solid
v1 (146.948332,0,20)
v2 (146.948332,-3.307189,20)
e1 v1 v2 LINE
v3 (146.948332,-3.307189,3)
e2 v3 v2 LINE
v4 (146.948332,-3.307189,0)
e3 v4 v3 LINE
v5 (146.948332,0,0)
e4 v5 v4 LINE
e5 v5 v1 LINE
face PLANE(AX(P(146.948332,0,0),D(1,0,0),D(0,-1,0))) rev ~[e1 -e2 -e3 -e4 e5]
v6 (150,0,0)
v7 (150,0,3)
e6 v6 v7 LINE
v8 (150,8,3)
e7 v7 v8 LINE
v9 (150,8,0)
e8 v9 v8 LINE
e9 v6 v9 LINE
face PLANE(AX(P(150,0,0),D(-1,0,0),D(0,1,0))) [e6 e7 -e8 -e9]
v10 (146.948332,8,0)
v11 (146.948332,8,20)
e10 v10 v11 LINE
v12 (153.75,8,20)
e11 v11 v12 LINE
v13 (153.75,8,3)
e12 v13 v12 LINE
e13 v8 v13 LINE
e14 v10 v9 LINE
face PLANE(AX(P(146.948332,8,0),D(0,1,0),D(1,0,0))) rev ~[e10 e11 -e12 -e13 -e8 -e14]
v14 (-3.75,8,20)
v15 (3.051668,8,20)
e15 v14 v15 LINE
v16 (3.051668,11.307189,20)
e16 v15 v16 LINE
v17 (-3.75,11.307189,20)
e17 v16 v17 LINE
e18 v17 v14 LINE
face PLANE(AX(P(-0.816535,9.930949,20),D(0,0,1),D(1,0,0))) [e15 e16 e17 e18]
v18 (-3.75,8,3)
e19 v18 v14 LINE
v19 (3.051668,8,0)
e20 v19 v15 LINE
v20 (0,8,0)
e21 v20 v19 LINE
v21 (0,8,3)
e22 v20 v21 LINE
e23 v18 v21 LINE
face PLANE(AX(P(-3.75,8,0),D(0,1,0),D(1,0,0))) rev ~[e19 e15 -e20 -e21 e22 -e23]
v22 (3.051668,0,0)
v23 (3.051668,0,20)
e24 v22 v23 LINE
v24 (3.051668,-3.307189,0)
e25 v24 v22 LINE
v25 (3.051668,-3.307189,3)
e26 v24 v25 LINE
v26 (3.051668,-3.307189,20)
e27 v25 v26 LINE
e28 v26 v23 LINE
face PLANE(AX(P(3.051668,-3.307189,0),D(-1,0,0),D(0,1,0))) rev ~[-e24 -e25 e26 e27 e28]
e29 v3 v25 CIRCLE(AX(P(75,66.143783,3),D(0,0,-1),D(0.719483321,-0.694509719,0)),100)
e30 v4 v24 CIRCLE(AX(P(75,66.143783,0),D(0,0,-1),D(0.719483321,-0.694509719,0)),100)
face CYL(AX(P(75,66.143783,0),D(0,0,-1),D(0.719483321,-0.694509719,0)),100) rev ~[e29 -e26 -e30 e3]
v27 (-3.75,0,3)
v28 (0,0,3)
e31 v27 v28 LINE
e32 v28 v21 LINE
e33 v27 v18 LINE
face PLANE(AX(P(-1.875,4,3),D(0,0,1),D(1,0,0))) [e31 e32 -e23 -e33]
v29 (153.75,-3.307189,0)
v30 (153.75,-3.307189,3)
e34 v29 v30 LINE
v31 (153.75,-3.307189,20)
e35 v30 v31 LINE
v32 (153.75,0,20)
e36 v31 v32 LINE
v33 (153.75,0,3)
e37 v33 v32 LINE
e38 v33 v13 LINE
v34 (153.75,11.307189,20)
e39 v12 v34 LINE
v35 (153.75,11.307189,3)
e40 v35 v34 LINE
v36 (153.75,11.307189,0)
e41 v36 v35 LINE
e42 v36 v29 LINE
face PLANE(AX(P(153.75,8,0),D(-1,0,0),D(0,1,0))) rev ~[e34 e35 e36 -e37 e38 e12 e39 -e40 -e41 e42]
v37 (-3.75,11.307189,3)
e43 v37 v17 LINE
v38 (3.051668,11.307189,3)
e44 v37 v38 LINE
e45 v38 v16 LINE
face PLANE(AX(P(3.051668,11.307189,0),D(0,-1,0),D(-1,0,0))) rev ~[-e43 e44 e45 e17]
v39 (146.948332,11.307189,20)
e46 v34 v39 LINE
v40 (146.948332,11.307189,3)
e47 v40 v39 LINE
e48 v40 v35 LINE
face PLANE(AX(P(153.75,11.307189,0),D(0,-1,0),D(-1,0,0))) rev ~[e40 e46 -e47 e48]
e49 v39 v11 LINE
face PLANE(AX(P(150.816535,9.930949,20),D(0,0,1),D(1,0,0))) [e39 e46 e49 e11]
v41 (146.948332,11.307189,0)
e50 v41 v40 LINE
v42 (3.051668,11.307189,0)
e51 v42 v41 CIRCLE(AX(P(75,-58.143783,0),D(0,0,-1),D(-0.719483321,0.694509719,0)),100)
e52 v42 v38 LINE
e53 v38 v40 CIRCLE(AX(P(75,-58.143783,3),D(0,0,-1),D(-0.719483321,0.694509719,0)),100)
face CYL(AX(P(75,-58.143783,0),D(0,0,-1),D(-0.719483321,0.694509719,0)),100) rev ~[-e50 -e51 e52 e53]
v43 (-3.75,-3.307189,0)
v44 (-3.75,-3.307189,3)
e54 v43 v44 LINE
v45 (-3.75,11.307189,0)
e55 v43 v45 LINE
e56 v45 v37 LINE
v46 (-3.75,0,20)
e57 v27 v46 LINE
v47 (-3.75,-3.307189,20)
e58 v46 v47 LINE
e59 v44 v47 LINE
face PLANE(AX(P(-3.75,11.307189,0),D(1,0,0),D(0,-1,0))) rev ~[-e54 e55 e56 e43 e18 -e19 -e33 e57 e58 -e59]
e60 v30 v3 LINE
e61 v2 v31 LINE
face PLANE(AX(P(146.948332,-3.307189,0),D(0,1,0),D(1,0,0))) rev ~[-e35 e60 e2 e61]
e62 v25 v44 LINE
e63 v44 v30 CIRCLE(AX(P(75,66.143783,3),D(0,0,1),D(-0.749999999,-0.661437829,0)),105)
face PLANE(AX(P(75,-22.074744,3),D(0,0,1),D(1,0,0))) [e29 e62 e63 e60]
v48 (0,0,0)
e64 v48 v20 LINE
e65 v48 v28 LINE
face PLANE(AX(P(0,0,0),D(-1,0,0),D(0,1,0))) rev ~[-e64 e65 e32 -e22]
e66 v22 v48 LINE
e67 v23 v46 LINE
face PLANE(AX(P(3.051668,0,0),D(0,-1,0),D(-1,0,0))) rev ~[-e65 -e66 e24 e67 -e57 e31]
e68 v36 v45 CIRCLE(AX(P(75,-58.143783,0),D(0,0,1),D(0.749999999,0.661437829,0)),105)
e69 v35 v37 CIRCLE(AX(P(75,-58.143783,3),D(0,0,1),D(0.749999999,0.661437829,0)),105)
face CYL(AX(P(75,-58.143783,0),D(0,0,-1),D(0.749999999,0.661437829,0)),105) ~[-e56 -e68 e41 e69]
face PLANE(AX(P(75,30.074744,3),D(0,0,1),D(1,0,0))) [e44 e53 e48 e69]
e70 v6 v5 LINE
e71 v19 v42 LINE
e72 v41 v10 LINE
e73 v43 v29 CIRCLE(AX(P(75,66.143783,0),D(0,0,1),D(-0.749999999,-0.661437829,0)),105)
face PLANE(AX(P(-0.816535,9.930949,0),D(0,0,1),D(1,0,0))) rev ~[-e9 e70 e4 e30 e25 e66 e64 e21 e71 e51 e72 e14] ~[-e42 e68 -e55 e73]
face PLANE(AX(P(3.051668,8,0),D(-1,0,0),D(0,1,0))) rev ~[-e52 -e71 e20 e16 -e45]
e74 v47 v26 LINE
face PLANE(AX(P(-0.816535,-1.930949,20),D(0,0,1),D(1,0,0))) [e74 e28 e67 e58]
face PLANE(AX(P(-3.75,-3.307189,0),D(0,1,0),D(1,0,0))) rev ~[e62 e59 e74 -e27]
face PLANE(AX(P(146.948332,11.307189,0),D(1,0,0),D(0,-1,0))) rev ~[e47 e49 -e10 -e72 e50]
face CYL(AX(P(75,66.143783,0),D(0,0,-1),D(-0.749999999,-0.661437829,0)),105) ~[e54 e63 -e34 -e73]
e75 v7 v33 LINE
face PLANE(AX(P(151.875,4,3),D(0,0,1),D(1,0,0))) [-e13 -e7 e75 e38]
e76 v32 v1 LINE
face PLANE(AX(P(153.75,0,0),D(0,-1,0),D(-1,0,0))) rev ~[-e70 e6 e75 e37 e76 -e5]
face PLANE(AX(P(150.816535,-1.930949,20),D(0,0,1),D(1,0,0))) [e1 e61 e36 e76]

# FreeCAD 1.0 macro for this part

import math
import FreeCAD as App
import Part
import Sketcher
Q = App.Units.Quantity

doc = App.newDocument("Part")
body = doc.addObject("PartDesign::Body", "Body")
body.AllowCompound = True

# Sketch on XY plane
sketch1 = body.newObject("Sketcher::SketchObject", "Sketch")
sketch1.AttachmentSupport = (doc.getObject("XY_Plane"), [""])
sketch1.MapMode = "FlatFace"
sketch1.addGeometry([
    Part.LineSegment(App.Vector(-3.8, 11.3, 0), App.Vector(3.1, 11.3, 0)),  # 0
    Part.ArcOfCircle(Part.Circle(App.Vector(75, -58.1, 0), App.Vector(0, 0, 1), 100), math.radians(44), math.radians(136)),  # 1
    Part.LineSegment(App.Vector(146.9, 11.3, 0), App.Vector(153.8, 11.3, 0)),  # 2
    Part.ArcOfCircle(Part.Circle(App.Vector(75, -58.1, 0), App.Vector(0, 0, 1), 105), math.radians(41), math.radians(139)),  # 3
    Part.ArcOfCircle(Part.Circle(App.Vector(75, 66.1, 0), App.Vector(0, 0, 1), 100), math.radians(-136), math.radians(-44)),  # 4
    Part.LineSegment(App.Vector(3.1, -3.3, 0), App.Vector(-3.8, -3.3, 0)),  # 5
    Part.ArcOfCircle(Part.Circle(App.Vector(75, 66.1, 0), App.Vector(0, 0, 1), 105), math.radians(-139), math.radians(-41)),  # 6
    Part.LineSegment(App.Vector(153.8, -3.3, 0), App.Vector(146.9, -3.3, 0)),  # 7
    Part.LineSegment(App.Vector(150, 8, 0), App.Vector(150, 0, 0)),  # 8
    Part.LineSegment(App.Vector(150, 0, 0), App.Vector(153.8, 0, 0)),  # 9
    Part.LineSegment(App.Vector(153.8, 0, 0), App.Vector(153.8, 8, 0)),  # 10
    Part.LineSegment(App.Vector(153.8, 8, 0), App.Vector(150, 8, 0)),  # 11
    Part.LineSegment(App.Vector(-3.8, 8, 0), App.Vector(-3.8, 0, 0)),  # 12
    Part.LineSegment(App.Vector(-3.8, 0, 0), App.Vector(0, 0, 0)),  # 13
    Part.LineSegment(App.Vector(0, 0, 0), App.Vector(0, 8, 0)),  # 14
    Part.LineSegment(App.Vector(0, 8, 0), App.Vector(-3.8, 8, 0)),  # 15
], False)
sketch1.addConstraint([
    Sketcher.Constraint("Coincident", 0, 2, 1, 2),
    Sketcher.Constraint("Coincident", 1, 1, 2, 1),
    Sketcher.Constraint("Coincident", 2, 2, 3, 1),
    Sketcher.Constraint("Coincident", 3, 2, 0, 1),
    Sketcher.Constraint("Coincident", 4, 1, 5, 1),
    Sketcher.Constraint("Coincident", 5, 2, 6, 1),
    Sketcher.Constraint("Coincident", 6, 2, 7, 1),
    Sketcher.Constraint("Coincident", 7, 2, 4, 2),
    Sketcher.Constraint("Coincident", 8, 2, 9, 1),
    Sketcher.Constraint("Coincident", 9, 2, 10, 1),
    Sketcher.Constraint("Coincident", 10, 2, 11, 1),
    Sketcher.Constraint("Coincident", 11, 2, 8, 1),
    Sketcher.Constraint("Coincident", 12, 2, 13, 1),
    Sketcher.Constraint("Coincident", 13, 2, 14, 1),
    Sketcher.Constraint("Coincident", 14, 2, 15, 1),
    Sketcher.Constraint("Coincident", 15, 2, 12, 1),
    Sketcher.Constraint("Horizontal", 0),
    Sketcher.Constraint("Horizontal", 2),
    Sketcher.Constraint("Horizontal", 5),
    Sketcher.Constraint("Horizontal", 7),
    Sketcher.Constraint("Vertical", 8),
    Sketcher.Constraint("Horizontal", 9),
    Sketcher.Constraint("Vertical", 10),
    Sketcher.Constraint("Horizontal", 11),
    Sketcher.Constraint("Vertical", 12),
    Sketcher.Constraint("Horizontal", 13),
    Sketcher.Constraint("Vertical", 14),
    Sketcher.Constraint("Horizontal", 15),
    Sketcher.Constraint("Coincident", 13, 2, -1, 1),
    Sketcher.Constraint("Coincident", 3, 3, 1, 3),
    Sketcher.Constraint("Coincident", 6, 3, 4, 3),
    Sketcher.Constraint("Equal", 1, 4),
    Sketcher.Constraint("Equal", 3, 6),
    Sketcher.Constraint("PointOnObject", 8, 2, -1),
    Sketcher.Constraint("Horizontal", 0, 2, 1, 1),
    Sketcher.Constraint("Horizontal", 5, 2, 6, 2),
    Sketcher.Constraint("Horizontal", 11, 2, 14, 2),
    Sketcher.Constraint("Vertical", 3, 3, 4, 3),
    Sketcher.Constraint("Vertical", 0, 2, 4, 1),
    Sketcher.Constraint("Vertical", 6, 2, 9, 2),
    Sketcher.Constraint("Vertical", 5, 2, 12, 2),
    Sketcher.Constraint("Equal", 11, 13),
    Sketcher.Constraint("Radius", 1, Q("100 mm")),
    Sketcher.Constraint("Radius", 3, Q("105 mm")),
    Sketcher.Constraint("DistanceY", 8, 2, 8, 1, Q("8 mm")),
    Sketcher.Constraint("DistanceX", -1, 1, 1, 3, Q("75 mm")),
    Sketcher.Constraint("DistanceX", 9, 1, 9, 2, Q("3.75 mm")),
    Sketcher.Constraint("DistanceY", -1, 1, 0, 2, Q("11.307189 mm")),
    Sketcher.Constraint("DistanceY", 4, 1, -1, 1, Q("3.307189 mm")),
])
pad1 = body.newObject("PartDesign::Pad", "Pad")
pad1.Profile = sketch1
pad1.Length = 3

# Sketch on XY plane
sketch2 = body.newObject("Sketcher::SketchObject", "Sketch001")
sketch2.AttachmentSupport = (doc.getObject("XY_Plane"), [""])
sketch2.MapMode = "FlatFace"
sketch2.addGeometry([
    Part.LineSegment(App.Vector(-3.8, 8, 0), App.Vector(3.1, 8, 0)),  # 0
    Part.LineSegment(App.Vector(3.1, 8, 0), App.Vector(3.1, 11.3, 0)),  # 1
    Part.LineSegment(App.Vector(3.1, 11.3, 0), App.Vector(-3.8, 11.3, 0)),  # 2
    Part.LineSegment(App.Vector(-3.8, 11.3, 0), App.Vector(-3.8, 8, 0)),  # 3
    Part.LineSegment(App.Vector(-3.8, 0, 0), App.Vector(-3.8, -3.3, 0)),  # 4
    Part.LineSegment(App.Vector(-3.8, -3.3, 0), App.Vector(3.1, -3.3, 0)),  # 5
    Part.LineSegment(App.Vector(3.1, -3.3, 0), App.Vector(3.1, 0, 0)),  # 6
    Part.LineSegment(App.Vector(3.1, 0, 0), App.Vector(-3.8, 0, 0)),  # 7
    Part.LineSegment(App.Vector(153.8, 11.3, 0), App.Vector(146.9, 11.3, 0)),  # 8
    Part.LineSegment(App.Vector(146.9, 11.3, 0), App.Vector(146.9, 8, 0)),  # 9
    Part.LineSegment(App.Vector(146.9, 8, 0), App.Vector(153.8, 8, 0)),  # 10
    Part.LineSegment(App.Vector(153.8, 8, 0), App.Vector(153.8, 11.3, 0)),  # 11
    Part.LineSegment(App.Vector(146.9, -3.3, 0), App.Vector(153.8, -3.3, 0)),  # 12
    Part.LineSegment(App.Vector(153.8, -3.3, 0), App.Vector(153.8, 0, 0)),  # 13
    Part.LineSegment(App.Vector(153.8, 0, 0), App.Vector(146.9, 0, 0)),  # 14
    Part.LineSegment(App.Vector(146.9, 0, 0), App.Vector(146.9, -3.3, 0)),  # 15
], False)
sketch2.addConstraint([
    Sketcher.Constraint("Coincident", 0, 2, 1, 1),
    Sketcher.Constraint("Coincident", 1, 2, 2, 1),
    Sketcher.Constraint("Coincident", 2, 2, 3, 1),
    Sketcher.Constraint("Coincident", 3, 2, 0, 1),
    Sketcher.Constraint("Coincident", 4, 2, 5, 1),
    Sketcher.Constraint("Coincident", 5, 2, 6, 1),
    Sketcher.Constraint("Coincident", 6, 2, 7, 1),
    Sketcher.Constraint("Coincident", 7, 2, 4, 1),
    Sketcher.Constraint("Coincident", 8, 2, 9, 1),
    Sketcher.Constraint("Coincident", 9, 2, 10, 1),
    Sketcher.Constraint("Coincident", 10, 2, 11, 1),
    Sketcher.Constraint("Coincident", 11, 2, 8, 1),
    Sketcher.Constraint("Coincident", 12, 2, 13, 1),
    Sketcher.Constraint("Coincident", 13, 2, 14, 1),
    Sketcher.Constraint("Coincident", 14, 2, 15, 1),
    Sketcher.Constraint("Coincident", 15, 2, 12, 1),
    Sketcher.Constraint("Horizontal", 0),
    Sketcher.Constraint("Vertical", 1),
    Sketcher.Constraint("Horizontal", 2),
    Sketcher.Constraint("Vertical", 3),
    Sketcher.Constraint("Vertical", 4),
    Sketcher.Constraint("Horizontal", 5),
    Sketcher.Constraint("Vertical", 6),
    Sketcher.Constraint("Horizontal", 7),
    Sketcher.Constraint("Horizontal", 8),
    Sketcher.Constraint("Vertical", 9),
    Sketcher.Constraint("Horizontal", 10),
    Sketcher.Constraint("Vertical", 11),
    Sketcher.Constraint("Horizontal", 12),
    Sketcher.Constraint("Vertical", 13),
    Sketcher.Constraint("Horizontal", 14),
    Sketcher.Constraint("Vertical", 15),
    Sketcher.Constraint("PointOnObject", 6, 2, -1),
    Sketcher.Constraint("PointOnObject", 13, 2, -1),
    Sketcher.Constraint("Horizontal", 2, 2, 8, 2),
    Sketcher.Constraint("Horizontal", 3, 2, 9, 2),
    Sketcher.Constraint("Horizontal", 5, 2, 12, 2),
    Sketcher.Constraint("Vertical", 3, 2, 4, 2),
    Sketcher.Constraint("Vertical", 1, 2, 5, 2),
    Sketcher.Constraint("Vertical", 11, 2, 12, 2),
    Sketcher.Constraint("Vertical", 9, 2, 14, 2),
    Sketcher.Constraint("Equal", 7, 8),
    Sketcher.Constraint("Equal", 3, 4),
    Sketcher.Constraint("DistanceY", -1, 1, 0, 2, Q("8 mm")),
    Sketcher.Constraint("DistanceX", 2, 2, -1, 1, Q("3.75 mm")),
    Sketcher.Constraint("DistanceX", -1, 1, 10, 2, Q("153.75 mm")),
    Sketcher.Constraint("DistanceX", 8, 2, 8, 1, Q("6.801668 mm")),
    Sketcher.Constraint("DistanceY", 1, 1, 1, 2, Q("3.307189 mm")),
])
pad2 = body.newObject("PartDesign::Pad", "Pad001")
pad2.Profile = sketch2
pad2.Length = 20

doc.recompute()
